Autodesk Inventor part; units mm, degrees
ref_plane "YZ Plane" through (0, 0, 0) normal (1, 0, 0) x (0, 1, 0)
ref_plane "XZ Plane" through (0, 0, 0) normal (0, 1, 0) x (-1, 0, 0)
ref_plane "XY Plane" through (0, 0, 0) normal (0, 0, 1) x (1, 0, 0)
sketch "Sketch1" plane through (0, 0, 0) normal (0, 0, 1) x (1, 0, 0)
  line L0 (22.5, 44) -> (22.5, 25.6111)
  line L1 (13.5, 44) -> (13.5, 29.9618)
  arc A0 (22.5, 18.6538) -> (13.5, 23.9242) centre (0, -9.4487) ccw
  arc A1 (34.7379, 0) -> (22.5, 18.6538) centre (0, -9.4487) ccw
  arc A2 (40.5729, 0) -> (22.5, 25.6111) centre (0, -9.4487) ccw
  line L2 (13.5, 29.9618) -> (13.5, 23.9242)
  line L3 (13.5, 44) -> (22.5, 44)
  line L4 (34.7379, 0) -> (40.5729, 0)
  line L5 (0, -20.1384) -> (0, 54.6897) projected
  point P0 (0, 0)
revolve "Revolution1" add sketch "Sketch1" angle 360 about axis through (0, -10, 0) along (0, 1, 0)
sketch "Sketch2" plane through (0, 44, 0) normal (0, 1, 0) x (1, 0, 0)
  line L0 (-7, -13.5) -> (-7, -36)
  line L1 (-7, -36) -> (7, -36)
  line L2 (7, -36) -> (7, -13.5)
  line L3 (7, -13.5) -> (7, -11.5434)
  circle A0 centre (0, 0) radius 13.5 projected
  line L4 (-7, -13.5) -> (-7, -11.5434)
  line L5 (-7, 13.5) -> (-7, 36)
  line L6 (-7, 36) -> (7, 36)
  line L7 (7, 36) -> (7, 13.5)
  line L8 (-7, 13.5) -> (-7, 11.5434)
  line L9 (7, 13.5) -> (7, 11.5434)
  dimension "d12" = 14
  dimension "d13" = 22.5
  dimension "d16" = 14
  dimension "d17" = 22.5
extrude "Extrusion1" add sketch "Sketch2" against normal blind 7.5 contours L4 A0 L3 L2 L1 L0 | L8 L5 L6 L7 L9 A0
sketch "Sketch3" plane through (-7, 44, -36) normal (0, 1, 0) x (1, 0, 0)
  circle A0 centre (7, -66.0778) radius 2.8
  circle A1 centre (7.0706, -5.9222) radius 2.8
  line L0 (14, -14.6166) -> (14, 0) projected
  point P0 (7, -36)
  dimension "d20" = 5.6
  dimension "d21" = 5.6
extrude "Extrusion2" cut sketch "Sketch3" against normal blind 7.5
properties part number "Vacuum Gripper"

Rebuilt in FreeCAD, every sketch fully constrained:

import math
import FreeCAD as App
import Part
import Sketcher

V = App.Vector

doc = App.newDocument("Part")
body = doc.addObject("PartDesign::Body", "Body")

# Sketch on XY plane
sketch1 = doc.addObject("Sketcher::SketchObject", "Sketch")
body.addObject(sketch1)
sketch1.AttachmentSupport = (doc.XY_Plane, [""])
sketch1.MapMode = "FlatFace"
sketch1.addGeometry([
    Part.LineSegment(V(22, 26, 0), V(22, 44, 0)),  # 0
    Part.LineSegment(V(22, 44, 0), V(14, 44, 0)),  # 1
    Part.LineSegment(V(14, 44, 0), V(14, 24, 0)),  # 2
    Part.ArcOfCircle(Part.Circle(V(0, -9, 0), V(0, 0, 1), 36), math.radians(51.32), math.radians(67.98)),  # 3
    Part.ArcOfCircle(Part.Circle(V(0, -9, 0), V(0, 0, 1), 36), math.radians(15), math.radians(51)),  # 4
    Part.LineSegment(V(35, 0, 0), V(41, 0, 0)),  # 5
    Part.ArcOfCircle(Part.Circle(V(0, -9, 0), V(0, 0, 1), 42), math.radians(13), math.radians(57)),  # 6
], False)
sketch1.addConstraint([
    Sketcher.Constraint("Coincident", 0, 2, 1, 1),
    Sketcher.Constraint("Coincident", 1, 2, 2, 1),
    Sketcher.Constraint("Coincident", 2, 2, 3, 2),
    Sketcher.Constraint("Tangent", 3, 1, 4, 2),
    Sketcher.Constraint("Coincident", 4, 1, 5, 1),
    Sketcher.Constraint("Coincident", 5, 2, 6, 1),
    Sketcher.Constraint("Coincident", 6, 2, 0, 1),
    Sketcher.Constraint("Vertical", 0),
    Sketcher.Constraint("Horizontal", 1),
    Sketcher.Constraint("Vertical", 2),
    Sketcher.Constraint("Horizontal", 5),
    Sketcher.Constraint("Coincident", 6, 3, 3, 3),
    Sketcher.Constraint("Equal", 3, 4),
    Sketcher.Constraint("PointOnObject", 3, 3, -2),
    Sketcher.Constraint("PointOnObject", 4, 1, -1),
    Sketcher.Constraint("Vertical", 0, 2, 3, 1),
    Sketcher.Constraint("Radius", 3, 36.0),
    Sketcher.Constraint("DistanceX", 1, 2, 1, 1, 9.0),
    Sketcher.Constraint("DistanceY", -1, 1, 0, 2, 44.0),
    Sketcher.Constraint("DistanceX", -1, 1, 0, 2, 22.5),
    Sketcher.Constraint("Radius", 6, 41.6586),
    Sketcher.Constraint("DistanceX", 5, 1, 5, 2, 5.835),
])
revolution = doc.addObject("PartDesign::Revolution", "Revolution")
body.addObject(revolution)
revolution.Profile = sketch1
revolution.ReferenceAxis = (sketch1, ["V_Axis"])
revolution.Angle = 360

# Sketch on XZ plane
sketch2 = doc.addObject("Sketcher::SketchObject", "Sketch001")
body.addObject(sketch2)
sketch2.AttachmentSupport = (doc.XZ_Plane, [""])
sketch2.MapMode = "FlatFace"
sketch2.AttachmentOffset = App.Placement(V(0, 0, -44), App.Rotation())
sketch2.addGeometry([
    Part.LineSegment(V(-7, 12, 0), V(-7, 36, 0)),  # 0
    Part.LineSegment(V(-7, 36, 0), V(7, 36, 0)),  # 1
    Part.LineSegment(V(7, 36, 0), V(7, 12, 0)),  # 2
    Part.ArcOfCircle(Part.Circle(V(0, 0, 0), V(0, 0, 1), 14), math.radians(59), math.radians(121)),  # 3
    Part.LineSegment(V(-7, -36, 0), V(-7, -12, 0)),  # 4
    Part.ArcOfCircle(Part.Circle(V(0, 0, 0), V(0, 0, 1), 14), math.radians(-121), math.radians(-59)),  # 5
    Part.LineSegment(V(7, -12, 0), V(7, -36, 0)),  # 6
    Part.LineSegment(V(7, -36, 0), V(-7, -36, 0)),  # 7
], False)
sketch2.addConstraint([
    Sketcher.Constraint("Coincident", 0, 2, 1, 1),
    Sketcher.Constraint("Coincident", 1, 2, 2, 1),
    Sketcher.Constraint("Coincident", 2, 2, 3, 1),
    Sketcher.Constraint("Coincident", 3, 2, 0, 1),
    Sketcher.Constraint("Coincident", 4, 2, 5, 1),
    Sketcher.Constraint("Coincident", 5, 2, 6, 1),
    Sketcher.Constraint("Coincident", 6, 2, 7, 1),
    Sketcher.Constraint("Coincident", 7, 2, 4, 1),
    Sketcher.Constraint("Vertical", 0),
    Sketcher.Constraint("Horizontal", 1),
    Sketcher.Constraint("Vertical", 2),
    Sketcher.Constraint("Vertical", 4),
    Sketcher.Constraint("Vertical", 6),
    Sketcher.Constraint("Horizontal", 7),
    Sketcher.Constraint("Coincident", 3, 3, -1, 1),
    Sketcher.Constraint("Coincident", 5, 3, -1, 1),
    Sketcher.Constraint("Equal", 3, 5),
    Sketcher.Constraint("Symmetric", 0, 2, 6, 2, -1, 1),
    Sketcher.Constraint("Horizontal", 2, 2, 3, 2),
    Sketcher.Constraint("Horizontal", 4, 2, 5, 2),
    Sketcher.Constraint("DistanceX", 1, 1, 1, 2, 14.0),
    Sketcher.Constraint("Radius", 3, 13.5),
    Sketcher.Constraint("DistanceY", -1, 1, 0, 2, 36.0),
])
pad1 = doc.addObject("PartDesign::Pad", "Pad")
body.addObject(pad1)
pad1.Profile = sketch2
pad1.Length = 7.5

# Sketch on XZ plane
sketch3 = doc.addObject("Sketcher::SketchObject", "Sketch002")
body.addObject(sketch3)
sketch3.AttachmentSupport = (doc.XZ_Plane, [""])
sketch3.MapMode = "FlatFace"
sketch3.AttachmentOffset = App.Placement(V(0, 0, -44), App.Rotation())
sketch3.addGeometry([
    Part.Circle(V(0, 30.1, 0), V(0, 0, 1), 2.8),
    Part.Circle(V(0.1, -30.1, 0), V(0, 0, 1), 2.8),
], False)
sketch3.addConstraint([
    Sketcher.Constraint("Equal", 0, 1),
    Sketcher.Constraint("PointOnObject", 0, 3, -2),
    Sketcher.Constraint("Diameter", 0, 5.6),
    Sketcher.Constraint("DistanceY", -1, 1, 0, 3, 30.0778),
    Sketcher.Constraint("DistanceX", -1, 1, 1, 3, 0.0706),
    Sketcher.Constraint("DistanceY", 1, 3, -1, 1, 30.0778),
])
pocket1 = doc.addObject("PartDesign::Pocket", "Pocket")
body.addObject(pocket1)
pocket1.Profile = sketch3
pocket1.Length = 7.5
pocket1.Reversed = True

doc.recompute()
